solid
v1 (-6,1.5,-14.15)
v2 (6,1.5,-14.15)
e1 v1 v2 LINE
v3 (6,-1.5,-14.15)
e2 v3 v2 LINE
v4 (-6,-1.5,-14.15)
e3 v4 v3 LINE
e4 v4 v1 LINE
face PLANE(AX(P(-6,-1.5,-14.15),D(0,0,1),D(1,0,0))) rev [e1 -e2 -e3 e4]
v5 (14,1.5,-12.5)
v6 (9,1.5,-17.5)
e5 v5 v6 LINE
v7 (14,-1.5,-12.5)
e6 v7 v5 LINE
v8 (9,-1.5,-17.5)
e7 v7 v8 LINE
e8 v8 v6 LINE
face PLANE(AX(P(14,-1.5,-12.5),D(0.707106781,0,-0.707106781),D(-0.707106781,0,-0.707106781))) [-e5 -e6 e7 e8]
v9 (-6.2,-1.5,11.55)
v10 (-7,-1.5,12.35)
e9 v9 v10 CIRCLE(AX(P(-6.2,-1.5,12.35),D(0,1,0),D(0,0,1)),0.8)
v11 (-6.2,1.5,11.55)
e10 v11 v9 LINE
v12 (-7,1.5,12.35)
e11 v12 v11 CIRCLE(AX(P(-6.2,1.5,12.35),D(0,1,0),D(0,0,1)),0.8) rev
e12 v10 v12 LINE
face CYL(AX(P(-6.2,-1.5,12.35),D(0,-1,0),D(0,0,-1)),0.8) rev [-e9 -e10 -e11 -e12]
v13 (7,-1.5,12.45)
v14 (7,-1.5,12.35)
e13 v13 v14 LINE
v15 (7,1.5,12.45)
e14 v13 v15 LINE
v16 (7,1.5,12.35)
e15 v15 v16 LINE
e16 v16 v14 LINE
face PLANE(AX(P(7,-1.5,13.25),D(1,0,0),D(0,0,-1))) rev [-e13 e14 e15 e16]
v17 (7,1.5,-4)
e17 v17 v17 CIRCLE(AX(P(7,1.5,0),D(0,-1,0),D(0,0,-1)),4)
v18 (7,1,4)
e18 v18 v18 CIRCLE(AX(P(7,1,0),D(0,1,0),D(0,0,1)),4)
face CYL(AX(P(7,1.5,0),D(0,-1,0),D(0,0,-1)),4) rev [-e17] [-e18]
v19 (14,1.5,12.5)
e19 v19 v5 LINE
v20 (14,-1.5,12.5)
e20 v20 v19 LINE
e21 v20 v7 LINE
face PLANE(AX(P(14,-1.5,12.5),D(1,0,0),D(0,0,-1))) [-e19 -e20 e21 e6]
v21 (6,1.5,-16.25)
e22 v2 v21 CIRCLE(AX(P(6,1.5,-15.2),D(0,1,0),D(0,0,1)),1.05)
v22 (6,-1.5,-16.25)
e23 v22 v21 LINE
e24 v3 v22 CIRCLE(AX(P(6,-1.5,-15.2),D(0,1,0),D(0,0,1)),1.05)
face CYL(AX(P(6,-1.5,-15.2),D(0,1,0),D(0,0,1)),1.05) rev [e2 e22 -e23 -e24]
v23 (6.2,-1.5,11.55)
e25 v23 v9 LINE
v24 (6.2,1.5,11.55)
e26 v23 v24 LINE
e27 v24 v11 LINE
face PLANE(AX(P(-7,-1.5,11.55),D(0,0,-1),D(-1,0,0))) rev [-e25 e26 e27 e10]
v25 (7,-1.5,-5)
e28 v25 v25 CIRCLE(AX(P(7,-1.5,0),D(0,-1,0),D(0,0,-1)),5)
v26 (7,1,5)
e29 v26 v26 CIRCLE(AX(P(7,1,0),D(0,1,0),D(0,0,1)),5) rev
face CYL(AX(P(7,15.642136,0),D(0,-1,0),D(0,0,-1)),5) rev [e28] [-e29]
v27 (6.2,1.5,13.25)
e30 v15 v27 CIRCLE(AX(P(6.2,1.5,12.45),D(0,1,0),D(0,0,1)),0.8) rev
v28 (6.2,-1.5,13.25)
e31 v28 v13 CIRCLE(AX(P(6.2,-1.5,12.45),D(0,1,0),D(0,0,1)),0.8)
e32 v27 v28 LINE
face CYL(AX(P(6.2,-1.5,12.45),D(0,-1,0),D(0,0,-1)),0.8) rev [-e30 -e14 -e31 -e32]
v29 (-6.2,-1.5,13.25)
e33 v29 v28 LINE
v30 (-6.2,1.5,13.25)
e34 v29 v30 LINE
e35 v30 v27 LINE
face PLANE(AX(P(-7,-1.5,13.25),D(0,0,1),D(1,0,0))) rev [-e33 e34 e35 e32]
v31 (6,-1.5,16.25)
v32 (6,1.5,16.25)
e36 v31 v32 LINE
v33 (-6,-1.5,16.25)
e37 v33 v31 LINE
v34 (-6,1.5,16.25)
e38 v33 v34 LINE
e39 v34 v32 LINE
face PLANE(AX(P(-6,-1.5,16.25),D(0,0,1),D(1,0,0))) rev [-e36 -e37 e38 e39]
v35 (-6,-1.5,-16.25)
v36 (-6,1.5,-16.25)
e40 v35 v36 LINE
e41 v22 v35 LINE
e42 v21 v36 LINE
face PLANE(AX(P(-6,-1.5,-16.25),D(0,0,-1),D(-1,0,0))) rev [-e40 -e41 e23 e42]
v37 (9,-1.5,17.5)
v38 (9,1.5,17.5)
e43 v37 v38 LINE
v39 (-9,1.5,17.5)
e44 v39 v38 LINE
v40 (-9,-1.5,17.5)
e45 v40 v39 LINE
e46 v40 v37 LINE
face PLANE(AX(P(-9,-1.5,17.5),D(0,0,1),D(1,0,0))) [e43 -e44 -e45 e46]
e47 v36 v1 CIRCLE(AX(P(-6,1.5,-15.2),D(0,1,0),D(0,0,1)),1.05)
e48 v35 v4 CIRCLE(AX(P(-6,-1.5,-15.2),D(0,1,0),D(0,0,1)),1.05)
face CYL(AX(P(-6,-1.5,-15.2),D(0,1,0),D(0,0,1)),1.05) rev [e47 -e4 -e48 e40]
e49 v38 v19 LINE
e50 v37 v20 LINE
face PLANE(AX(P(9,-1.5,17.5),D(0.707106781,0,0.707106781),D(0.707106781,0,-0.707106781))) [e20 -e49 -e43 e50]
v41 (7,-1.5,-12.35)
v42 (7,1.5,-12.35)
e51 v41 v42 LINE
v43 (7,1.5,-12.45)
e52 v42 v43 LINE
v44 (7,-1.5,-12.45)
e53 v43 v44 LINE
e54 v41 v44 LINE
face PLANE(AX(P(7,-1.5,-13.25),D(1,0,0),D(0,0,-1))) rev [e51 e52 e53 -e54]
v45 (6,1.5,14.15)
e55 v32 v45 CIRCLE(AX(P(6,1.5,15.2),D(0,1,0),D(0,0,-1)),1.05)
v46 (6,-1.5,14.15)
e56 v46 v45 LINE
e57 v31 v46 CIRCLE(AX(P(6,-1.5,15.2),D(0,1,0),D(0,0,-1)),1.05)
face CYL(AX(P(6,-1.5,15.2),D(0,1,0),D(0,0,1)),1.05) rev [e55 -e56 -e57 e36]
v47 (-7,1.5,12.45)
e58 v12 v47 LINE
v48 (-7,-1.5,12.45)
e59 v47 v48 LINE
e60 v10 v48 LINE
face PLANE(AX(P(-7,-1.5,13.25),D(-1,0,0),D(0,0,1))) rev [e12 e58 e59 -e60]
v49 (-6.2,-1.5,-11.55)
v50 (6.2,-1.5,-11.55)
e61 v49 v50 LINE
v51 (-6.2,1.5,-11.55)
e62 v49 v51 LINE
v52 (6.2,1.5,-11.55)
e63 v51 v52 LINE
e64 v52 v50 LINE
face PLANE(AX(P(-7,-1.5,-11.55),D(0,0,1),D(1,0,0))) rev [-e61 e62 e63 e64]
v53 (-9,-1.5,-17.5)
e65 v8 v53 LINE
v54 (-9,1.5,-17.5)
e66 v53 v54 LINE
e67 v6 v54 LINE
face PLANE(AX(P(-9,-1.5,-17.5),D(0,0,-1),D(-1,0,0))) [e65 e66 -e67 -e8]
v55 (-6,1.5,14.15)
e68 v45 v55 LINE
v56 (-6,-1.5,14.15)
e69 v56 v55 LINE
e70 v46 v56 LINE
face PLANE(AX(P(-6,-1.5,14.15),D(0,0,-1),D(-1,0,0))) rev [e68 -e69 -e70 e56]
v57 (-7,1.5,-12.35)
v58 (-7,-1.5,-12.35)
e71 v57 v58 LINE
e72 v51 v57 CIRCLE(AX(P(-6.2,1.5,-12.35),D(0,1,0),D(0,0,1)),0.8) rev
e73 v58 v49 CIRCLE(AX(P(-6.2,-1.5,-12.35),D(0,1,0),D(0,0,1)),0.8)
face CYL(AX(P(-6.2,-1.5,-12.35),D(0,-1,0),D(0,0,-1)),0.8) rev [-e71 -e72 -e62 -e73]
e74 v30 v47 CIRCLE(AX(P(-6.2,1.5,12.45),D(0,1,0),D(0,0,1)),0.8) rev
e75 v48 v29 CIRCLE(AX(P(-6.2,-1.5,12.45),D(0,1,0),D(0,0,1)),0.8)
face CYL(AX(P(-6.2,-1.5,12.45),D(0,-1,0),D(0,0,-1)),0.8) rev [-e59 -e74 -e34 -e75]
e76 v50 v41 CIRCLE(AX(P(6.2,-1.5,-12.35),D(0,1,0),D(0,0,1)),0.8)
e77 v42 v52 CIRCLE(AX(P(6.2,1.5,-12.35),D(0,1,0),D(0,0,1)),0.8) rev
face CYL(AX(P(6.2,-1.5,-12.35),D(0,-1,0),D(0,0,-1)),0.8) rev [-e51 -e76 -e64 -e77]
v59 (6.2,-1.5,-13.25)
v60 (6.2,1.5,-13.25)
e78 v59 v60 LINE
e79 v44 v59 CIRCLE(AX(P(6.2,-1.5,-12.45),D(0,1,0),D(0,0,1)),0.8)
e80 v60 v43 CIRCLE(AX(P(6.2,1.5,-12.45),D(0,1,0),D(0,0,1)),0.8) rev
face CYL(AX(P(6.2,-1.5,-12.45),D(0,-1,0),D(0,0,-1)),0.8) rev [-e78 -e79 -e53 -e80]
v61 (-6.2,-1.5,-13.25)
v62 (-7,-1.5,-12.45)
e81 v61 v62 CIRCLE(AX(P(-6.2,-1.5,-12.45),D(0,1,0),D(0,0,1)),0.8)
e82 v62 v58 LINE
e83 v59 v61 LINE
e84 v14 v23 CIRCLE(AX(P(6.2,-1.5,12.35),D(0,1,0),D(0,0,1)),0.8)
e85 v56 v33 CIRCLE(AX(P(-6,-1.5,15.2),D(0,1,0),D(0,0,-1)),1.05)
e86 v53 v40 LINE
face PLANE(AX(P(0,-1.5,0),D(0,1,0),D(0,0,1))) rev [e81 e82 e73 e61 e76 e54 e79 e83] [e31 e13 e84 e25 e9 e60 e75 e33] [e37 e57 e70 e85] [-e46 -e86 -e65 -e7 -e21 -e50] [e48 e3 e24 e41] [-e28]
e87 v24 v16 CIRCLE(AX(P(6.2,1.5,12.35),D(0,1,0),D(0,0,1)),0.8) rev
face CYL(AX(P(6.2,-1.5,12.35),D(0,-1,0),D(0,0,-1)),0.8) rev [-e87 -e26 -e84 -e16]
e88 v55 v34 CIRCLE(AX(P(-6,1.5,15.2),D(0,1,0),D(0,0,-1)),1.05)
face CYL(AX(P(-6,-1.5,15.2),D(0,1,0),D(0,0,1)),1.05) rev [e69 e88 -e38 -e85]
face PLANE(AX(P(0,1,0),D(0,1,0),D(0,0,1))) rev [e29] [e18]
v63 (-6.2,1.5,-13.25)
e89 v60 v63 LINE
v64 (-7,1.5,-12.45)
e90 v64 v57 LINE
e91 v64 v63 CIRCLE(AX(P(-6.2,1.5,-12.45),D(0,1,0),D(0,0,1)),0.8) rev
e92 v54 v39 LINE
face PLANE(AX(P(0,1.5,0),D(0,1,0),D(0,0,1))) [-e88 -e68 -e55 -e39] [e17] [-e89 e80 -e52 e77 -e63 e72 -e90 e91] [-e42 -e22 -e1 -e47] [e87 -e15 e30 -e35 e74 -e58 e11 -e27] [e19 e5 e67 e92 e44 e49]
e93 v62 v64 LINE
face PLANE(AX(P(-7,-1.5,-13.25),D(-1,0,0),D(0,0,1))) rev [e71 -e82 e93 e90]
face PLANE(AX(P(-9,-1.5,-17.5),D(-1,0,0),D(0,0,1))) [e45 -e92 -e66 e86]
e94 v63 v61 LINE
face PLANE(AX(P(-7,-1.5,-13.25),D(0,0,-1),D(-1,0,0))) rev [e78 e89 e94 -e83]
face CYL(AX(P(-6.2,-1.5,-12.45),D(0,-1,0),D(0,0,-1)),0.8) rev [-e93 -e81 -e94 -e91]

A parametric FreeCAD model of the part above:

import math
import FreeCAD as App
import Part
import Sketcher
from FreeCAD import Vector
Q = App.Units.Quantity


def edges_at(feature, points):
    """Names of the edges that pass closest to the given points."""
    edges = feature.Shape.Edges
    near = lambda p: min(range(len(edges)), key=lambda i: edges[i].distToShape(Part.Vertex(*p))[0])
    return sorted({f"Edge{near(p) + 1}" for p in points})

doc = App.newDocument("Part")
body = doc.addObject("PartDesign::Body", "Body")

# Sketch on XZ plane
sketch1 = body.newObject("Sketcher::SketchObject", "Sketch")
sketch1.AttachmentSupport = (doc.getObject("XZ_Plane"), [""])
sketch1.MapMode = "FlatFace"
sketch1.addGeometry(Part.LineSegment(Vector(9, -17.5, 0), Vector(-9, -17.5, 0)), False)
sketch1.addGeometry(Part.LineSegment(Vector(-9, -17.5, 0), Vector(-9, 17.5, 0)), False)
sketch1.addGeometry(Part.LineSegment(Vector(-9, 17.5, 0), Vector(9, 17.5, 0)), False)
sketch1.addGeometry(Part.LineSegment(Vector(9, 17.5, 0), Vector(14, 12.5, 0)), False)
sketch1.addGeometry(Part.LineSegment(Vector(14, 12.5, 0), Vector(14, -12.5, 0)), False)
sketch1.addGeometry(Part.LineSegment(Vector(14, -12.5, 0), Vector(9, -17.5, 0)), False)
sketch1.addGeometry(Part.LineSegment(Vector(-7, 13.25, 0), Vector(-7, 11.55, 0)), False)
sketch1.addGeometry(Part.LineSegment(Vector(-7, 11.55, 0), Vector(7, 11.55, 0)), False)
sketch1.addGeometry(Part.LineSegment(Vector(7, 11.55, 0), Vector(7, 13.25, 0)), False)
sketch1.addGeometry(Part.LineSegment(Vector(7, 13.25, 0), Vector(-7, 13.25, 0)), False)
sketch1.addGeometry(Part.ArcOfCircle(Part.Circle(Vector(-6, 15.2, 0), Vector(0, 0, 1), 1.05), math.radians(90), math.radians(270)), False)
sketch1.addGeometry(Part.LineSegment(Vector(-6, 14.15, 0), Vector(6, 14.15, 0)), False)
sketch1.addGeometry(Part.ArcOfCircle(Part.Circle(Vector(6, 15.2, 0), Vector(0, 0, 1), 1.05), math.radians(-90), math.radians(90)), False)
sketch1.addGeometry(Part.LineSegment(Vector(6, 16.25, 0), Vector(-6, 16.25, 0)), False)
sketch1.addGeometry(Part.LineSegment(Vector(-7, -11.55, 0), Vector(-7, -13.25, 0)), False)
sketch1.addGeometry(Part.LineSegment(Vector(-7, -13.25, 0), Vector(7, -13.25, 0)), False)
sketch1.addGeometry(Part.LineSegment(Vector(7, -13.25, 0), Vector(7, -11.55, 0)), False)
sketch1.addGeometry(Part.LineSegment(Vector(7, -11.55, 0), Vector(-7, -11.55, 0)), False)
sketch1.addGeometry(Part.LineSegment(Vector(-6, -16.25, 0), Vector(6, -16.25, 0)), False)
sketch1.addGeometry(Part.ArcOfCircle(Part.Circle(Vector(6, -15.2, 0), Vector(0, 0, 1), 1.05), math.radians(-90), math.radians(90)), False)
sketch1.addGeometry(Part.LineSegment(Vector(6, -14.15, 0), Vector(-6, -14.15, 0)), False)
sketch1.addGeometry(Part.ArcOfCircle(Part.Circle(Vector(-6, -15.2, 0), Vector(0, 0, 1), 1.05), math.radians(90), math.radians(270)), False)
sketch1.addConstraint(Sketcher.Constraint("Coincident", 0, 2, 1, 1))
sketch1.addConstraint(Sketcher.Constraint("Coincident", 1, 2, 2, 1))
sketch1.addConstraint(Sketcher.Constraint("Coincident", 2, 2, 3, 1))
sketch1.addConstraint(Sketcher.Constraint("Coincident", 3, 2, 4, 1))
sketch1.addConstraint(Sketcher.Constraint("Coincident", 4, 2, 5, 1))
sketch1.addConstraint(Sketcher.Constraint("Coincident", 5, 2, 0, 1))
sketch1.addConstraint(Sketcher.Constraint("Coincident", 6, 2, 7, 1))
sketch1.addConstraint(Sketcher.Constraint("Coincident", 7, 2, 8, 1))
sketch1.addConstraint(Sketcher.Constraint("Coincident", 8, 2, 9, 1))
sketch1.addConstraint(Sketcher.Constraint("Coincident", 9, 2, 6, 1))
sketch1.addConstraint(Sketcher.Constraint("Tangent", 10, 2, 11, 1))
sketch1.addConstraint(Sketcher.Constraint("Tangent", 11, 2, 12, 1))
sketch1.addConstraint(Sketcher.Constraint("Tangent", 12, 2, 13, 1))
sketch1.addConstraint(Sketcher.Constraint("Tangent", 13, 2, 10, 1))
sketch1.addConstraint(Sketcher.Constraint("Coincident", 14, 2, 15, 1))
sketch1.addConstraint(Sketcher.Constraint("Coincident", 15, 2, 16, 1))
sketch1.addConstraint(Sketcher.Constraint("Coincident", 16, 2, 17, 1))
sketch1.addConstraint(Sketcher.Constraint("Coincident", 17, 2, 14, 1))
sketch1.addConstraint(Sketcher.Constraint("Tangent", 18, 2, 19, 1))
sketch1.addConstraint(Sketcher.Constraint("Tangent", 19, 2, 20, 1))
sketch1.addConstraint(Sketcher.Constraint("Tangent", 20, 2, 21, 1))
sketch1.addConstraint(Sketcher.Constraint("Tangent", 21, 2, 18, 1))
sketch1.addConstraint(Sketcher.Constraint("Horizontal", 0))
sketch1.addConstraint(Sketcher.Constraint("Vertical", 1))
sketch1.addConstraint(Sketcher.Constraint("Horizontal", 2))
sketch1.addConstraint(Sketcher.Constraint("Vertical", 4))
sketch1.addConstraint(Sketcher.Constraint("Vertical", 6))
sketch1.addConstraint(Sketcher.Constraint("Horizontal", 7))
sketch1.addConstraint(Sketcher.Constraint("Vertical", 8))
sketch1.addConstraint(Sketcher.Constraint("Horizontal", 9))
sketch1.addConstraint(Sketcher.Constraint("Horizontal", 11))
sketch1.addConstraint(Sketcher.Constraint("Horizontal", 13))
sketch1.addConstraint(Sketcher.Constraint("Vertical", 14))
sketch1.addConstraint(Sketcher.Constraint("Horizontal", 15))
sketch1.addConstraint(Sketcher.Constraint("Vertical", 16))
sketch1.addConstraint(Sketcher.Constraint("Horizontal", 17))
sketch1.addConstraint(Sketcher.Constraint("Horizontal", 18))
sketch1.addConstraint(Sketcher.Constraint("Horizontal", 20))
sketch1.addConstraint(Sketcher.Constraint("Equal", 12, 19))
sketch1.addConstraint(Sketcher.Constraint("Symmetric", 10, 3, 19, 3, -1, 1))
sketch1.addConstraint(Sketcher.Constraint("Symmetric", 0, 2, 2, 2, -1, 1))
sketch1.addConstraint(Sketcher.Constraint("Symmetric", 8, 2, 14, 2, -1, 1))
sketch1.addConstraint(Sketcher.Constraint("Symmetric", 6, 2, 16, 2, -1, 1))
sketch1.addConstraint(Sketcher.Constraint("Perpendicular", 3, 5))
sketch1.addConstraint(Sketcher.Constraint("Vertical", 12, 3, 19, 3))
sketch1.addConstraint(Sketcher.Constraint("Vertical", 10, 3, 21, 3))
sketch1.addConstraint(Sketcher.Constraint("Vertical", 2, 2, 5, 2))
sketch1.addConstraint(Sketcher.Constraint("Vertical", 9, 2, 14, 2))
sketch1.addConstraint(Sketcher.Constraint("Equal", 3, 5))
sketch1.addConstraint(Sketcher.Constraint("DistanceX", 0, 2, 0, 1, Q("18 mm")))
sketch1.addConstraint(Sketcher.Constraint("DistanceX", 7, 1, 7, 2, Q("14 mm")))
sketch1.addConstraint(Sketcher.Constraint("DistanceX", 11, 1, 11, 2, Q("12 mm")))
sketch1.addConstraint(Sketcher.Constraint("DistanceY", 1, 1, 1, 2, Q("35 mm")))
sketch1.addConstraint(Sketcher.Constraint("DistanceY", 4, 2, 4, 1, Q("25 mm")))
sketch1.addConstraint(Sketcher.Constraint("Radius", 10, Q("1.05 mm")))
sketch1.addConstraint(Sketcher.Constraint("DistanceY", 6, 2, 6, 1, Q("1.7 mm")))
sketch1.addConstraint(Sketcher.Constraint("DistanceY", 8, 2, 12, 2, Q("3 mm")))
sketch1.addConstraint(Sketcher.Constraint("DistanceY", -1, 1, 10, 3, Q("15.2 mm")))
pad1 = body.newObject("PartDesign::Pad", "Pad")
pad1.Profile = sketch1
pad1.Length = 3
pad1.Midplane = True
doc.recompute()

fillet = body.newObject("PartDesign::Fillet", "Fillet")
fillet.Base = (pad1, edges_at(pad1, [
    (-7, 0, -11.55),
    (-7, 0, -13.25),
    (7, 0, -13.25),
    (7, 0, -11.55),
    (7, 0, 13.25),
    (-7, 0, 13.25),
    (-7, 0, 11.55),
    (7, 0, 11.55),
]))
fillet.Radius = 0.8

# Sketch on XZ plane
sketch2 = body.newObject("Sketcher::SketchObject", "Sketch001")
sketch2.AttachmentSupport = (doc.getObject("XZ_Plane"), [""])
sketch2.MapMode = "FlatFace"
sketch2.AttachmentOffset = App.Placement(Vector(0, 0, 1.5), App.Rotation())
sketch2.addGeometry(Part.Circle(Vector(7, 0, 0), Vector(0, 0, 1), 5), False)
sketch2.addConstraint(Sketcher.Constraint("PointOnObject", 0, 3, -1))
sketch2.addConstraint(Sketcher.Constraint("Diameter", 0, Q("10 mm")))
sketch2.addConstraint(Sketcher.Constraint("DistanceX", -1, 1, 0, 3, Q("7 mm")))
pocket1 = body.newObject("PartDesign::Pocket", "Pocket")
pocket1.Profile = sketch2
pocket1.Length = 2.5

# Sketch on XZ plane
sketch3 = body.newObject("Sketcher::SketchObject", "Sketch002")
sketch3.AttachmentSupport = (doc.getObject("XZ_Plane"), [""])
sketch3.MapMode = "FlatFace"
sketch3.AttachmentOffset = App.Placement(Vector(0, 0, 1.5), App.Rotation())
sketch3.addGeometry(Part.Circle(Vector(7, 0, 0), Vector(0, 0, 1), 4), False)
sketch3.addConstraint(Sketcher.Constraint("PointOnObject", 0, 3, -1))
sketch3.addConstraint(Sketcher.Constraint("Diameter", 0, Q("8 mm")))
sketch3.addConstraint(Sketcher.Constraint("DistanceX", -1, 1, 0, 3, Q("7 mm")))
pocket2 = body.newObject("PartDesign::Pocket", "Pocket001")
pocket2.Profile = sketch3
pocket2.Type = "ThroughAll"

doc.recompute()
